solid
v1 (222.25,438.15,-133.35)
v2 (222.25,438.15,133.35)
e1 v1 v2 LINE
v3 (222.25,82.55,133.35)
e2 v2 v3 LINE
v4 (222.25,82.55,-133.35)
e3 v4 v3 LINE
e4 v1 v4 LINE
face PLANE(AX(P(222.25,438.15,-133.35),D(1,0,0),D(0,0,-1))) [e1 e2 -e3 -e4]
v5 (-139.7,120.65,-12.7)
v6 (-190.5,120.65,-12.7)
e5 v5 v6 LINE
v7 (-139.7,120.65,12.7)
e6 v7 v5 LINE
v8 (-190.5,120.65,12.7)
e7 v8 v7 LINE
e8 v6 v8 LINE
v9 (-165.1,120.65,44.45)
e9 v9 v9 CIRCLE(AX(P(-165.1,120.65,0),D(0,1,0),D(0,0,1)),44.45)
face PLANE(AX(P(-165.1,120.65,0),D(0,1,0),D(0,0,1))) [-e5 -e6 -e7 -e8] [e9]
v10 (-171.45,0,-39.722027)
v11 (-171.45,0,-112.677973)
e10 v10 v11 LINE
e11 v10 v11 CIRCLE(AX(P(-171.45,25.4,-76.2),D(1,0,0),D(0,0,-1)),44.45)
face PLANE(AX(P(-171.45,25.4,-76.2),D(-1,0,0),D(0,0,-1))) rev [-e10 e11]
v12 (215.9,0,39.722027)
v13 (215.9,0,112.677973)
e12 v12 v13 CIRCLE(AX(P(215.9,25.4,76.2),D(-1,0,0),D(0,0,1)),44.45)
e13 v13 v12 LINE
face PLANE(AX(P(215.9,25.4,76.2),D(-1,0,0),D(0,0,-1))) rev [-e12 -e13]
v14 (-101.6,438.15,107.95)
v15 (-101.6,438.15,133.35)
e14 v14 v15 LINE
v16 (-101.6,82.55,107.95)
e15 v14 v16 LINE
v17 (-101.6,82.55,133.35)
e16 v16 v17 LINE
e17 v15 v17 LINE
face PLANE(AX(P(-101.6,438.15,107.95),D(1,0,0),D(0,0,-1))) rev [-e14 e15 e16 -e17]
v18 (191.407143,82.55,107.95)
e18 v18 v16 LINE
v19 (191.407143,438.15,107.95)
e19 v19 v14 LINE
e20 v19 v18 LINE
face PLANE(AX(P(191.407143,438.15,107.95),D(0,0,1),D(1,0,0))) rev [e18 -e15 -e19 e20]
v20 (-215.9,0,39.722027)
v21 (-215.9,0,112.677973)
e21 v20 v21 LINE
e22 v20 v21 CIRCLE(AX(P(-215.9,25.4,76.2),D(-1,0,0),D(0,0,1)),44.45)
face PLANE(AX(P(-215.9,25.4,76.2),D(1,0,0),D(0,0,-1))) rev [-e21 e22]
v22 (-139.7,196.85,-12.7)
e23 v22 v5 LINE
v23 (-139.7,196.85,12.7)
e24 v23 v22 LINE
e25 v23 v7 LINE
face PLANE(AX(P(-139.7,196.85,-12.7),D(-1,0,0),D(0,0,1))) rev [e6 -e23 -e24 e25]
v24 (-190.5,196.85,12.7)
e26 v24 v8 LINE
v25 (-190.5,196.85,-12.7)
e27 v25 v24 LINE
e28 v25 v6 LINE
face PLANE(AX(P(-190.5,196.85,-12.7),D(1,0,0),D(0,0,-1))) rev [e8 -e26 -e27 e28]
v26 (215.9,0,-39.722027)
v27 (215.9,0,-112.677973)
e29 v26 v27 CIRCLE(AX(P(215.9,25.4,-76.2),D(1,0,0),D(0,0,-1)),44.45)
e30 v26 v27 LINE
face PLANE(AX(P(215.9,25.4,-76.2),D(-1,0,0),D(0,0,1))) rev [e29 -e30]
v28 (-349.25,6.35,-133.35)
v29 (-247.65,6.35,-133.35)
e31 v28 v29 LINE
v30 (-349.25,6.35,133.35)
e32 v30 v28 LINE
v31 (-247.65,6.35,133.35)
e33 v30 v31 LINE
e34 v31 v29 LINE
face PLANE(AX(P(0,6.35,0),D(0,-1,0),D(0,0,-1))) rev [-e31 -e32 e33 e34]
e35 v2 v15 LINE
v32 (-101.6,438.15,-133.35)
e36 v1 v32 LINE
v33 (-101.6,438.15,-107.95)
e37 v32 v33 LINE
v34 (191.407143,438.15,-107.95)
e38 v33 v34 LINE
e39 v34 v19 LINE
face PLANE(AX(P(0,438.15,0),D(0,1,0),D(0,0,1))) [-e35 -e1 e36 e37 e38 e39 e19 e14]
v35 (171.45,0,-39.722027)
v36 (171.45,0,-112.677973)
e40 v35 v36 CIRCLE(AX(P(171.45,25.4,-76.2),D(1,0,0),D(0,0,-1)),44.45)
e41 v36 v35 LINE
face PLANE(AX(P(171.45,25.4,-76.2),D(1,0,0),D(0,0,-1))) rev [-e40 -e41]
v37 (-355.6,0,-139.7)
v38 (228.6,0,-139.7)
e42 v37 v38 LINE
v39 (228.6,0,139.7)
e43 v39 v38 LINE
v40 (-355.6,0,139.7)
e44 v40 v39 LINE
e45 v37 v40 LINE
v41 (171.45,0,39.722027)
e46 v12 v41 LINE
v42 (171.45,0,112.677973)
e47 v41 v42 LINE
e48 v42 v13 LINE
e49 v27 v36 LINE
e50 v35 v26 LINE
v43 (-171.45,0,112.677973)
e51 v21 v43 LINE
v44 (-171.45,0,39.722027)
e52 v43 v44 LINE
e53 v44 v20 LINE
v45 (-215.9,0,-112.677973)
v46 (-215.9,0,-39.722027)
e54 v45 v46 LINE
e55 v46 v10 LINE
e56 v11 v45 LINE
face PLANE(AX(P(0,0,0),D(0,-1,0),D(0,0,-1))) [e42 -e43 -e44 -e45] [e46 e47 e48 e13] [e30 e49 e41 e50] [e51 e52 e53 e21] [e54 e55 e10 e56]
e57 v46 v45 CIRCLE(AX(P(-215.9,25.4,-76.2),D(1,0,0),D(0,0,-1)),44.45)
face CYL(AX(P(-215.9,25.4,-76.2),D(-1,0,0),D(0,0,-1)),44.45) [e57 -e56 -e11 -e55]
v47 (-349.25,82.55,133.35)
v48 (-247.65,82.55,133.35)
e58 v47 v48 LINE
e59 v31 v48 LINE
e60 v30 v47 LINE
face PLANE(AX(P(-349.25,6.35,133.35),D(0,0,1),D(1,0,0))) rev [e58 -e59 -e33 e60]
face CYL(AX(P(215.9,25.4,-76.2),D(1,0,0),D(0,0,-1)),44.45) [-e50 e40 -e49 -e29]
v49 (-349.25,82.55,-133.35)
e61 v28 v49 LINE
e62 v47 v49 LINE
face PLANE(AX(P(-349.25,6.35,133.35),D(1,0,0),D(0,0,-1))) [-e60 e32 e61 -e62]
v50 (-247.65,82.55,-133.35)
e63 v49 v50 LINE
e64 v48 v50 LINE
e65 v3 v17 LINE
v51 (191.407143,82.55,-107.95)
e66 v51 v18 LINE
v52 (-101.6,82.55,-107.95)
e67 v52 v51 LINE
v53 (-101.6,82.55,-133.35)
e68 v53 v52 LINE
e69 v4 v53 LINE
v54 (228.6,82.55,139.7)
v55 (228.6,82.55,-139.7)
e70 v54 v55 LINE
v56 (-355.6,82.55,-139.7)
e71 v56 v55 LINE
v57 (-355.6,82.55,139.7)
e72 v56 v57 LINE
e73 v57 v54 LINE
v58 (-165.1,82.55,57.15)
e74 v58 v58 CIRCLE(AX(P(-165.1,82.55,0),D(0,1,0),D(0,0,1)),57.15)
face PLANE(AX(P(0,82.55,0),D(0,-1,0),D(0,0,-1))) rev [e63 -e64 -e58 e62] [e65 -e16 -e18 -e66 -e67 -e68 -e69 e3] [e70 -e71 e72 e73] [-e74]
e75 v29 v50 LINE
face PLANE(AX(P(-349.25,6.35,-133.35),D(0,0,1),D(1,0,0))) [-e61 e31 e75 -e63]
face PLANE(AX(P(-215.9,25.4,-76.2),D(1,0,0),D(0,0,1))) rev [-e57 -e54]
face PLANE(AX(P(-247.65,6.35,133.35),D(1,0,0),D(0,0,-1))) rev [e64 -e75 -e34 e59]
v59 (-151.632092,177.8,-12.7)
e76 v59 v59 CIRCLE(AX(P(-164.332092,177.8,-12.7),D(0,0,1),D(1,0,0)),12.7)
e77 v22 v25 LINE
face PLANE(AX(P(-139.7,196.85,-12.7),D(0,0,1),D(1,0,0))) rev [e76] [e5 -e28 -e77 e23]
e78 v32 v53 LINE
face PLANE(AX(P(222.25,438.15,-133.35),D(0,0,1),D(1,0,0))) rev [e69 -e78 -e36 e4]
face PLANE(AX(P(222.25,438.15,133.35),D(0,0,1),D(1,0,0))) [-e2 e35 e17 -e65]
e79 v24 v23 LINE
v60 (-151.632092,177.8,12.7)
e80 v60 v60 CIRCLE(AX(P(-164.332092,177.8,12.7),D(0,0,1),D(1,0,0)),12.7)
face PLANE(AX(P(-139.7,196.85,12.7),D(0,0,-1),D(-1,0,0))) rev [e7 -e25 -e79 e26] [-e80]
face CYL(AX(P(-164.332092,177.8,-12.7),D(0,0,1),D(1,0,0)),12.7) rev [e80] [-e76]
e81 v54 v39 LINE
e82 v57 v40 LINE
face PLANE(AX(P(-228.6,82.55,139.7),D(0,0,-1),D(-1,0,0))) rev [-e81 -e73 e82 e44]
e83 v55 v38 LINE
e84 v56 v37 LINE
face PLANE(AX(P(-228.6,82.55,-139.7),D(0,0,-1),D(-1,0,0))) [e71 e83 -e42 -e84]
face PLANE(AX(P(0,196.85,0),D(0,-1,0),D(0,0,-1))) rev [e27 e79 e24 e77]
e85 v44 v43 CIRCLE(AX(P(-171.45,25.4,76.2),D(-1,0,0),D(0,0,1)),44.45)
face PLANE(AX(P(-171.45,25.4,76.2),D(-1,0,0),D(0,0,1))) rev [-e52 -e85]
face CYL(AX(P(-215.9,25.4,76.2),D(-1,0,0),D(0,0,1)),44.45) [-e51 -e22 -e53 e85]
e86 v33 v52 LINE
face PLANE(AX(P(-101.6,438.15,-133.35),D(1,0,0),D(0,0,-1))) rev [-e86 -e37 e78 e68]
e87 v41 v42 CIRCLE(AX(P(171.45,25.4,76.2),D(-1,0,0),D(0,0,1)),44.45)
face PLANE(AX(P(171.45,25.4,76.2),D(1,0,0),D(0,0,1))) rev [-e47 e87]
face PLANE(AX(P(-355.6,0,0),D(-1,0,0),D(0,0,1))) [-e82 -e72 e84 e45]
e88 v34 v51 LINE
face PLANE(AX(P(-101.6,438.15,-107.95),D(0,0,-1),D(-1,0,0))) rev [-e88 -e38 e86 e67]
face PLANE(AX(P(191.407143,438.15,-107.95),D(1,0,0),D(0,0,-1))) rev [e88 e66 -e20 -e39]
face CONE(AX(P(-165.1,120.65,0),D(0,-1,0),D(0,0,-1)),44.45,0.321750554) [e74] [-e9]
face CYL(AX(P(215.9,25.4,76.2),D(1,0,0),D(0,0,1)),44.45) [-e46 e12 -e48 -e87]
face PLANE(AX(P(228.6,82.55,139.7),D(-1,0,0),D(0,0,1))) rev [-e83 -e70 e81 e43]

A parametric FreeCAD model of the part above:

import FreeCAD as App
import Part
import Sketcher
from FreeCAD import Vector
Q = App.Units.Quantity

doc = App.newDocument("Part")
body = doc.addObject("PartDesign::Body", "Body")

sketch1 = doc.addObject("Sketcher::SketchObject", "Sketch")
body.addObject(sketch1)
sketch1.AttachmentSupport = (doc.XZ_Plane, [""])
sketch1.MapMode = "FlatFace"
sketch1.addGeometry([
    Part.LineSegment(Vector(-229, -140, 0), Vector(-229, 140, 0)),
    Part.LineSegment(Vector(-229, 140, 0), Vector(229, 140, 0)),
    Part.LineSegment(Vector(229, 140, 0), Vector(229, -140, 0)),
    Part.LineSegment(Vector(229, -140, 0), Vector(-229, -140, 0)),
], False)
sketch1.addConstraint([
    Sketcher.Constraint("Coincident", 0, 2, 1, 1),
    Sketcher.Constraint("Coincident", 1, 2, 2, 1),
    Sketcher.Constraint("Coincident", 2, 2, 3, 1),
    Sketcher.Constraint("Coincident", 3, 2, 0, 1),
    Sketcher.Constraint("Vertical", 0),
    Sketcher.Constraint("Horizontal", 1),
    Sketcher.Constraint("Vertical", 2),
    Sketcher.Constraint("Horizontal", 3),
    Sketcher.Constraint("Symmetric", 0, 2, 2, 2, -1, 1),
    Sketcher.Constraint("DistanceX", 1, 1, 1, 2, Q("18 in")),
    Sketcher.Constraint("DistanceY", 0, 1, 0, 2, Q("11 in")),
])
pad1 = doc.addObject("PartDesign::Pad", "Pad")
body.addObject(pad1)
pad1.Profile = sketch1
pad1.Length = Q("3.25 in")
pad1.Reversed = True

sketch2 = doc.addObject("Sketcher::SketchObject", "Sketch001")
body.addObject(sketch2)
sketch2.AttachmentSupport = (doc.XZ_Plane, [""])
sketch2.MapMode = "FlatFace"
sketch2.AttachmentOffset = App.Placement(Vector(0, 0, -1 * 25.4), App.Rotation())
sketch2.addGeometry([
    Part.LineSegment(Vector(-171, 76, 0), Vector(-171, 121, 0)),
    Part.LineSegment(Vector(-171, 121, 0), Vector(-216, 121, 0)),
    Part.LineSegment(Vector(-216, 121, 0), Vector(-216, 76, 0)),
    Part.LineSegment(Vector(-216, 76, 0), Vector(-171, 76, 0)),
], False)
sketch2.addGeometry(Part.LineSegment(Vector(-216, 76, 0), Vector(-171, 76, 0)), True)
sketch2.addConstraint([
    Sketcher.Constraint("Coincident", 0, 2, 1, 1),
    Sketcher.Constraint("Coincident", 1, 2, 2, 1),
    Sketcher.Constraint("Coincident", 2, 2, 3, 1),
    Sketcher.Constraint("Coincident", 3, 2, 0, 1),
    Sketcher.Constraint("Vertical", 0),
    Sketcher.Constraint("Horizontal", 1),
    Sketcher.Constraint("Vertical", 2),
    Sketcher.Constraint("Horizontal", 3),
    Sketcher.Constraint("Horizontal", 4),
    Sketcher.Constraint("Coincident", 4, 1, 2, 2),
    Sketcher.Constraint("Vertical", 0, 2, 4, 2),
    Sketcher.Constraint("Equal", 4, 0),
    Sketcher.Constraint("DistanceY", -1, 1, 2, 2, Q("3 in")),
    Sketcher.Constraint("DistanceX", 1, 2, 1, 1, Q("1.75 in")),
    Sketcher.Constraint("DistanceX", 1, 2, -1, 1, Q("8.5 in")),
])
revolution = doc.addObject("PartDesign::Revolution", "Revolution")
body.addObject(revolution)
revolution.Profile = sketch2
revolution.ReferenceAxis = (sketch2, ["Axis0"])
revolution.Angle = 360
doc.recompute()

mirrored = doc.addObject("PartDesign::Mirrored", "Mirrored")
body.addObject(mirrored)
mirrored.Originals = [revolution]
mirrored.MirrorPlane = (doc.XY_Plane, [""])
body.Tip = mirrored
doc.recompute()

mirrored2 = doc.addObject("PartDesign::Mirrored", "Mirrored001")
body.addObject(mirrored2)
mirrored2.Originals = [revolution]
mirrored2.MirrorPlane = (doc.YZ_Plane, [""])
body.Tip = mirrored2

sketch3 = doc.addObject("Sketcher::SketchObject", "Sketch002")
body.addObject(sketch3)
sketch3.AttachmentSupport = (doc.XZ_Plane, [""])
sketch3.MapMode = "FlatFace"
sketch3.AttachmentOffset = App.Placement(Vector(0, 0, -1 * 25.4), App.Rotation())
sketch3.addGeometry([
    Part.LineSegment(Vector(171, -76, 0), Vector(171, -121, 0)),
    Part.LineSegment(Vector(171, -121, 0), Vector(216, -121, 0)),
    Part.LineSegment(Vector(216, -121, 0), Vector(216, -76, 0)),
    Part.LineSegment(Vector(216, -76, 0), Vector(171, -76, 0)),
], False)
sketch3.addGeometry(Part.LineSegment(Vector(216, -76, 0), Vector(171, -76, 0)), True)
sketch3.addConstraint([
    Sketcher.Constraint("Coincident", 0, 2, 1, 1),
    Sketcher.Constraint("Coincident", 1, 2, 2, 1),
    Sketcher.Constraint("Coincident", 2, 2, 3, 1),
    Sketcher.Constraint("Coincident", 3, 2, 0, 1),
    Sketcher.Constraint("Vertical", 0),
    Sketcher.Constraint("Horizontal", 1),
    Sketcher.Constraint("Vertical", 2),
    Sketcher.Constraint("Horizontal", 3),
    Sketcher.Constraint("Horizontal", 4),
    Sketcher.Constraint("Coincident", 4, 1, 2, 2),
    Sketcher.Constraint("Vertical", 0, 2, 4, 2),
    Sketcher.Constraint("Equal", 4, 0),
    Sketcher.Constraint("DistanceY", 2, 2, -1, 1, Q("3 in")),
    Sketcher.Constraint("DistanceX", 1, 1, 1, 2, Q("1.75 in")),
    Sketcher.Constraint("DistanceX", -1, 1, 1, 2, Q("8.5 in")),
])
revolution2 = doc.addObject("PartDesign::Revolution", "Revolution001")
body.addObject(revolution2)
revolution2.Profile = sketch3
revolution2.ReferenceAxis = (sketch3, ["Axis0"])
revolution2.Angle = 360

sketch4 = doc.addObject("Sketcher::SketchObject", "Sketch003")
body.addObject(sketch4)
sketch4.AttachmentSupport = (doc.XZ_Plane, [""])
sketch4.MapMode = "FlatFace"
sketch4.AttachmentOffset = App.Placement(Vector(0, 0, -3.25 * 25.4), App.Rotation())
sketch4.addGeometry([
    Part.LineSegment(Vector(222, -133, 0), Vector(-102, -133, 0)),
    Part.LineSegment(Vector(-102, -133, 0), Vector(-102, -108, 0)),
    Part.LineSegment(Vector(-102, -108, 0), Vector(191, -108, 0)),
    Part.LineSegment(Vector(191, -108, 0), Vector(191, 108, 0)),
    Part.LineSegment(Vector(191, 108, 0), Vector(-102, 108, 0)),
    Part.LineSegment(Vector(-102, 108, 0), Vector(-102, 133, 0)),
    Part.LineSegment(Vector(-102, 133, 0), Vector(222, 133, 0)),
    Part.LineSegment(Vector(222, 133, 0), Vector(222, -133, 0)),
], False)
sketch4.addConstraint([
    Sketcher.Constraint("Coincident", 0, 2, 1, 1),
    Sketcher.Constraint("Coincident", 1, 2, 2, 1),
    Sketcher.Constraint("Coincident", 2, 2, 3, 1),
    Sketcher.Constraint("Coincident", 3, 2, 4, 1),
    Sketcher.Constraint("Coincident", 4, 2, 5, 1),
    Sketcher.Constraint("Coincident", 5, 2, 6, 1),
    Sketcher.Constraint("Coincident", 6, 2, 7, 1),
    Sketcher.Constraint("Coincident", 7, 2, 0, 1),
    Sketcher.Constraint("Horizontal", 0),
    Sketcher.Constraint("Vertical", 1),
    Sketcher.Constraint("Horizontal", 2),
    Sketcher.Constraint("Vertical", 3),
    Sketcher.Constraint("Horizontal", 4),
    Sketcher.Constraint("Vertical", 5),
    Sketcher.Constraint("Horizontal", 6),
    Sketcher.Constraint("Vertical", 7),
    Sketcher.Constraint("Symmetric", 1, 2, 4, 2, -1),
    Sketcher.Constraint("Equal", 1, 5),
    Sketcher.Constraint("DistanceY", 1, 1, 1, 2, Q("1 in")),
    Sketcher.Constraint("DistanceY", 3, 1, 3, 2, Q("8.5 in")),
    Sketcher.Constraint("DistanceX", 0, 2, -1, 1, Q("4 in")),
    Sketcher.Constraint("DistanceX", 0, 2, 0, 1, Q("12.75 in")),
    Sketcher.Constraint("DistanceX", 2, 1, 2, 2, 293.007143),
])
pad2 = doc.addObject("PartDesign::Pad", "Pad001")
body.addObject(pad2)
pad2.Profile = sketch4
pad2.Length = Q("14 in")
pad2.Reversed = True

sketch5 = doc.addObject("Sketcher::SketchObject", "Sketch004")
body.addObject(sketch5)
sketch5.AttachmentSupport = (doc.XZ_Plane, [""])
sketch5.MapMode = "FlatFace"
sketch5.AttachmentOffset = App.Placement(Vector(0, 0, -4.75 * 25.4), App.Rotation())
sketch5.addGeometry(Part.Circle(Vector(-165, 0, 0), Vector(0, 0, 1), 44), False)
sketch5.addConstraint([
    Sketcher.Constraint("PointOnObject", 0, 3, -1),
    Sketcher.Constraint("Diameter", 0, Q("3.5 in")),
    Sketcher.Constraint("DistanceX", 0, 3, -1, 1, Q("6.5 in")),
])

sketch6 = doc.addObject("Sketcher::SketchObject", "Sketch005")
body.addObject(sketch6)
sketch6.AttachmentSupport = (doc.XZ_Plane, [""])
sketch6.MapMode = "FlatFace"
sketch6.AttachmentOffset = App.Placement(Vector(0, 0, -3.25 * 25.4), App.Rotation())
sketch6.addGeometry(Part.Circle(Vector(-165, 0, 0), Vector(0, 0, 1), 57), False)
sketch6.addConstraint([
    Sketcher.Constraint("PointOnObject", 0, 3, -1),
    Sketcher.Constraint("Diameter", 0, Q("4.5 in")),
    Sketcher.Constraint("DistanceX", 0, 3, -1, 1, Q("6.5 in")),
])

additiveloft = doc.addObject("PartDesign::AdditiveLoft", "AdditiveLoft")
body.addObject(additiveloft)
additiveloft.Profile = sketch5
additiveloft.Sections = [sketch6]

sketch7 = doc.addObject("Sketcher::SketchObject", "Sketch006")
body.addObject(sketch7)
sketch7.AttachmentSupport = (doc.YZ_Plane, [""])
sketch7.MapMode = "FlatFace"
sketch7.AttachmentOffset = App.Placement(Vector(0, 0, -9 * 25.4), App.Rotation())
sketch7.addGeometry([
    Part.LineSegment(Vector(83, -140, 0), Vector(0, -140, 0)),
    Part.LineSegment(Vector(0, -140, 0), Vector(0, 140, 0)),
    Part.LineSegment(Vector(0, 140, 0), Vector(83, 140, 0)),
    Part.LineSegment(Vector(83, 140, 0), Vector(83, -140, 0)),
], False)
sketch7.addConstraint([
    Sketcher.Constraint("Coincident", 0, 2, 1, 1),
    Sketcher.Constraint("Coincident", 1, 2, 2, 1),
    Sketcher.Constraint("Coincident", 2, 2, 3, 1),
    Sketcher.Constraint("Coincident", 3, 2, 0, 1),
    Sketcher.Constraint("Horizontal", 0),
    Sketcher.Constraint("Vertical", 1),
    Sketcher.Constraint("Horizontal", 2),
    Sketcher.Constraint("Vertical", 3),
    Sketcher.Constraint("Symmetric", 0, 2, 1, 2, -1, 1),
    Sketcher.Constraint("DistanceY", 1, 1, 1, 2, Q("11 in")),
    Sketcher.Constraint("DistanceX", 0, 2, 0, 1, Q("3.25 in")),
])
pad3 = doc.addObject("PartDesign::Pad", "Pad002")
body.addObject(pad3)
pad3.Profile = sketch7
pad3.Length = Q("5 in")
pad3.Reversed = True

sketch8 = doc.addObject("Sketcher::SketchObject", "Sketch007")
body.addObject(sketch8)
sketch8.AttachmentSupport = (doc.XZ_Plane, [""])
sketch8.MapMode = "FlatFace"
sketch8.AttachmentOffset = App.Placement(Vector(0, 0, -3.25 * 25.4), App.Rotation())
sketch8.addGeometry([
    Part.LineSegment(Vector(-349, -133, 0), Vector(-349, 133, 0)),
    Part.LineSegment(Vector(-349, 133, 0), Vector(-248, 133, 0)),
    Part.LineSegment(Vector(-248, 133, 0), Vector(-248, -133, 0)),
    Part.LineSegment(Vector(-248, -133, 0), Vector(-349, -133, 0)),
], False)
sketch8.addConstraint([
    Sketcher.Constraint("Coincident", 0, 2, 1, 1),
    Sketcher.Constraint("Coincident", 1, 2, 2, 1),
    Sketcher.Constraint("Coincident", 2, 2, 3, 1),
    Sketcher.Constraint("Coincident", 3, 2, 0, 1),
    Sketcher.Constraint("Vertical", 0),
    Sketcher.Constraint("Horizontal", 1),
    Sketcher.Constraint("Vertical", 2),
    Sketcher.Constraint("Horizontal", 3),
    Sketcher.Constraint("DistanceX", 1, 1, 1, 2, Q("4 in")),
    Sketcher.Constraint("DistanceY", 0, 1, 0, 2, Q("10.5 in")),
    Sketcher.Constraint("DistanceX", 0, 2, -1, 1, Q("13.75 in")),
    Sketcher.Constraint("DistanceY", -1, 1, 0, 2, Q("5.25 in")),
])
pocket1 = doc.addObject("PartDesign::Pocket", "Pocket")
body.addObject(pocket1)
pocket1.Profile = sketch8
pocket1.Length = Q("3 in")
pocket1.Reversed = True

sketch9 = doc.addObject("Sketcher::SketchObject", "Sketch008")
body.addObject(sketch9)
sketch9.AttachmentSupport = (doc.XZ_Plane, [""])
sketch9.MapMode = "FlatFace"
sketch9.AttachmentOffset = App.Placement(Vector(0, 0, -4.75 * 25.4), App.Rotation())
sketch9.addGeometry([
    Part.LineSegment(Vector(-190, -13, 0), Vector(-190, 13, 0)),
    Part.LineSegment(Vector(-190, 13, 0), Vector(-140, 13, 0)),
    Part.LineSegment(Vector(-140, 13, 0), Vector(-140, -13, 0)),
    Part.LineSegment(Vector(-140, -13, 0), Vector(-190, -13, 0)),
], False)
sketch9.addConstraint([
    Sketcher.Constraint("Coincident", 0, 2, 1, 1),
    Sketcher.Constraint("Coincident", 1, 2, 2, 1),
    Sketcher.Constraint("Coincident", 2, 2, 3, 1),
    Sketcher.Constraint("Coincident", 3, 2, 0, 1),
    Sketcher.Constraint("Vertical", 0),
    Sketcher.Constraint("Horizontal", 1),
    Sketcher.Constraint("Vertical", 2),
    Sketcher.Constraint("Horizontal", 3),
    Sketcher.Constraint("DistanceX", 1, 1, 1, 2, Q("2 in")),
    Sketcher.Constraint("DistanceY", 0, 1, 0, 2, Q("1 in")),
    Sketcher.Constraint("DistanceX", 0, 2, -1, 1, Q("7.5 in")),
    Sketcher.Constraint("DistanceY", -1, 1, 0, 2, Q("0.5 in")),
])
pad4 = doc.addObject("PartDesign::Pad", "Pad003")
body.addObject(pad4)
pad4.Profile = sketch9
pad4.Length = Q("3 in")
pad4.Reversed = True

sketch10 = doc.addObject("Sketcher::SketchObject", "Sketch009")
body.addObject(sketch10)
sketch10.AttachmentSupport = (doc.XY_Plane, [""])
sketch10.MapMode = "FlatFace"
sketch10.AttachmentOffset = App.Placement(Vector(0, 0, 0.5 * 25.4), App.Rotation())
sketch10.addGeometry(Part.Circle(Vector(-164, 178, 0), Vector(0, 0, 1), 13), False)
sketch10.addConstraint([
    Sketcher.Constraint("Diameter", 0, Q("1 in")),
    Sketcher.Constraint("DistanceY", -1, 1, 0, 3, Q("7 in")),
    Sketcher.Constraint("DistanceX", 0, 3, -1, 1, 164.332092),
])
pocket2 = doc.addObject("PartDesign::Pocket", "Pocket001")
body.addObject(pocket2)
pocket2.Profile = sketch10
pocket2.Length = Q("1 in")

doc.recompute()
